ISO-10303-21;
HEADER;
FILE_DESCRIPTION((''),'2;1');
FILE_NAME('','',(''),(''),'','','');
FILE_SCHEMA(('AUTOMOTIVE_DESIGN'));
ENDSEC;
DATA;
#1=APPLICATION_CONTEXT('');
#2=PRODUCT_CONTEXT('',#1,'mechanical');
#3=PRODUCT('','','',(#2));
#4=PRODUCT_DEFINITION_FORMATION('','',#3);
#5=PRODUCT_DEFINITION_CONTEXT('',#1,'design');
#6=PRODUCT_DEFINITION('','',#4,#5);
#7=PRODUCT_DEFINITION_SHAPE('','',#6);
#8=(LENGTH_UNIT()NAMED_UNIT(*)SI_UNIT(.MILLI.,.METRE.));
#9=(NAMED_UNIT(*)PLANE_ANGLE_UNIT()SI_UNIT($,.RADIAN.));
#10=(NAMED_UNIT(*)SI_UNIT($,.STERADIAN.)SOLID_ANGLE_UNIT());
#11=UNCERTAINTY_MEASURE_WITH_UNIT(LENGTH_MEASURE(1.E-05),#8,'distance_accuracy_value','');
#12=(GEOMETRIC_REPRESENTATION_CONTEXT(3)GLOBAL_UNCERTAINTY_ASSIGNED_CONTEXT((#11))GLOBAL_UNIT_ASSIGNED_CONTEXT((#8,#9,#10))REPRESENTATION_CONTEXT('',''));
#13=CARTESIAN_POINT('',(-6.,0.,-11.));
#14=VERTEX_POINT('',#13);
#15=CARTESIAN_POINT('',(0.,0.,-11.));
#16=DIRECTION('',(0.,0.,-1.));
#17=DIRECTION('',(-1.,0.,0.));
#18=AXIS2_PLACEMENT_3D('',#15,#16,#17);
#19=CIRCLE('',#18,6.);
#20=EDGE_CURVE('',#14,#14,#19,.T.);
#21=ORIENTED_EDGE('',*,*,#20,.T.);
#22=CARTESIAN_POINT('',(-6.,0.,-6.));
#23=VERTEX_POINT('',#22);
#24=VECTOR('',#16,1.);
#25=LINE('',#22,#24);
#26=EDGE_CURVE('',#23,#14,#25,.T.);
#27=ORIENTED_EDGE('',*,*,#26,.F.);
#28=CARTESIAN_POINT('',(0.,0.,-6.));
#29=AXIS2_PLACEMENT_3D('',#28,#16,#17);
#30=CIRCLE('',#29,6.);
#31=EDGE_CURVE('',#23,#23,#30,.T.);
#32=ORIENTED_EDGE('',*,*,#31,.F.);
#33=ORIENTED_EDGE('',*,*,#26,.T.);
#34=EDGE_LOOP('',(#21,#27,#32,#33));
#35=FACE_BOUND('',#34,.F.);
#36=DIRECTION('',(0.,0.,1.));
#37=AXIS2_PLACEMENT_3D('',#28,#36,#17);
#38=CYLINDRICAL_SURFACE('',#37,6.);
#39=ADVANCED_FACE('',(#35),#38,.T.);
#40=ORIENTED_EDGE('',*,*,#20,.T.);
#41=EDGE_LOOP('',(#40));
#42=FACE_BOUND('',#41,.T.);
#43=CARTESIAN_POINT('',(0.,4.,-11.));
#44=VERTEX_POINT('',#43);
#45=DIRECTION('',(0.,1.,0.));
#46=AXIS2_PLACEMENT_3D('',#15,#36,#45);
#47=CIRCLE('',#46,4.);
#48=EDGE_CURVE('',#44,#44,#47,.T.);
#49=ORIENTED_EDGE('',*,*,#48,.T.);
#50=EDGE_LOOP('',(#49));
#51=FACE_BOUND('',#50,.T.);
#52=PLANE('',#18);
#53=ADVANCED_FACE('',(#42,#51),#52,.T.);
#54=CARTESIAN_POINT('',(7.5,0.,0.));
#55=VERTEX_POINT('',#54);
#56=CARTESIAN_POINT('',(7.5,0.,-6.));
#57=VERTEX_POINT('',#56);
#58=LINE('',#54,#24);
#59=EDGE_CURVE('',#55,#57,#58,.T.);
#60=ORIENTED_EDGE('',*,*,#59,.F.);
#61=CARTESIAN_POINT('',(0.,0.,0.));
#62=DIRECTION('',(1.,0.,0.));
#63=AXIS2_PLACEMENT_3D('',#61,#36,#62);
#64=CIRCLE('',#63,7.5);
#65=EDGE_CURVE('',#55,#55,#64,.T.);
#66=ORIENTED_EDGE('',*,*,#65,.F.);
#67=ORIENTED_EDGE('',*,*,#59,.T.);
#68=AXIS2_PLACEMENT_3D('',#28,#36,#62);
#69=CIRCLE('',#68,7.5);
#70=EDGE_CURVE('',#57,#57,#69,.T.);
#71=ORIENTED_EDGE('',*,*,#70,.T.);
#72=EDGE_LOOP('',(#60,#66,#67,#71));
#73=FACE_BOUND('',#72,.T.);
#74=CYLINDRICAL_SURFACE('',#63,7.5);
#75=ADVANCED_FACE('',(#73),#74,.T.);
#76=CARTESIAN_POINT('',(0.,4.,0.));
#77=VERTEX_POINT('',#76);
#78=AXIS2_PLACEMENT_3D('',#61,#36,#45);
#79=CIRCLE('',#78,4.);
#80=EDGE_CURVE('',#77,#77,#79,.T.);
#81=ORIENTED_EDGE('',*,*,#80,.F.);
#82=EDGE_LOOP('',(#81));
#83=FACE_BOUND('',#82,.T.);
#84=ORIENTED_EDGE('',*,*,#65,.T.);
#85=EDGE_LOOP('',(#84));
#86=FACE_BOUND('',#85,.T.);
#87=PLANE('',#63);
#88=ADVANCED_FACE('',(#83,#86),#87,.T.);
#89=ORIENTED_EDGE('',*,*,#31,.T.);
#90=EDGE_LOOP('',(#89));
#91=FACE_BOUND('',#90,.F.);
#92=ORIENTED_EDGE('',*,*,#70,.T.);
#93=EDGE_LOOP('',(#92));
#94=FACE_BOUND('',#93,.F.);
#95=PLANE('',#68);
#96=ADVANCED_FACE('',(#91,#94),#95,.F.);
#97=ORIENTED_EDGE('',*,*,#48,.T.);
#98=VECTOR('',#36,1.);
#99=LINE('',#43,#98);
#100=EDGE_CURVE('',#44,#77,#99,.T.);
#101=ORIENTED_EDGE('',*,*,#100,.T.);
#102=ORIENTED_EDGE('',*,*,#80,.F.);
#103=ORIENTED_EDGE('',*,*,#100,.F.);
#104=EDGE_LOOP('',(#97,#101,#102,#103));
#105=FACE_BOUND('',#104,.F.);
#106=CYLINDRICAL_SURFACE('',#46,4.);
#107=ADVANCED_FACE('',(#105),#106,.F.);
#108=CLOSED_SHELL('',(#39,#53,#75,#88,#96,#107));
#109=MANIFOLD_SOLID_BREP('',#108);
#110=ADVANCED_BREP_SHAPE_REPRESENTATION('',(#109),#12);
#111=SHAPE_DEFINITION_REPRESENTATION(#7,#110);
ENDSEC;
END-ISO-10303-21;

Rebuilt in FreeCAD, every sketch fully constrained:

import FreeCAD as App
import Part
import Sketcher
Q = App.Units.Quantity

doc = App.newDocument("Part")
body = doc.addObject("PartDesign::Body", "Body")

# Sketch on XY plane
sketch1 = body.newObject("Sketcher::SketchObject", "Sketch")
sketch1.AttachmentSupport = (doc.getObject("XY_Plane"), [""])
sketch1.MapMode = "FlatFace"
sketch1.addGeometry(Part.Circle(App.Vector(0, 0, 0), App.Vector(0, 0, 1), 7.5), False)
sketch1.addConstraint([
    Sketcher.Constraint("Coincident", 0, 3, -1, 1),
    Sketcher.Constraint("Diameter", 0, Q("15 mm")),
])
pad1 = body.newObject("PartDesign::Pad", "Pad")
pad1.Profile = sketch1
pad1.Length = 6
pad1.Reversed = True

# Sketch on XY plane
sketch2 = body.newObject("Sketcher::SketchObject", "Sketch001")
sketch2.AttachmentSupport = (doc.getObject("XY_Plane"), [""])
sketch2.MapMode = "FlatFace"
sketch2.AttachmentOffset = App.Placement(App.Vector(0, 0, -6), App.Rotation())
sketch2.addGeometry(Part.Circle(App.Vector(0, 0, 0), App.Vector(0, 0, 1), 6), False)
sketch2.addConstraint([
    Sketcher.Constraint("Coincident", 0, 3, -1, 1),
    Sketcher.Constraint("Diameter", 0, Q("12 mm")),
])
pad2 = body.newObject("PartDesign::Pad", "Pad001")
pad2.Profile = sketch2
pad2.Length = 5
pad2.Reversed = True

# Sketch on XY plane
sketch3 = body.newObject("Sketcher::SketchObject", "Sketch002")
sketch3.AttachmentSupport = (doc.getObject("XY_Plane"), [""])
sketch3.MapMode = "FlatFace"
sketch3.AttachmentOffset = App.Placement(App.Vector(0, 0, -11), App.Rotation())
sketch3.addGeometry(Part.Circle(App.Vector(0, 0, 0), App.Vector(0, 0, 1), 4), False)
sketch3.addConstraint([
    Sketcher.Constraint("Coincident", 0, 3, -1, 1),
    Sketcher.Constraint("Diameter", 0, Q("8 mm")),
])
doc.recompute()
hole = body.newObject("PartDesign::Hole", "Hole")
hole.Profile = sketch3
hole.ThreadType = "None"
hole.Diameter = 8
hole.DepthType = "Dimension"
hole.Depth = 11
hole.DrillPoint = "Flat"
hole.Reversed = True

doc.recompute()
